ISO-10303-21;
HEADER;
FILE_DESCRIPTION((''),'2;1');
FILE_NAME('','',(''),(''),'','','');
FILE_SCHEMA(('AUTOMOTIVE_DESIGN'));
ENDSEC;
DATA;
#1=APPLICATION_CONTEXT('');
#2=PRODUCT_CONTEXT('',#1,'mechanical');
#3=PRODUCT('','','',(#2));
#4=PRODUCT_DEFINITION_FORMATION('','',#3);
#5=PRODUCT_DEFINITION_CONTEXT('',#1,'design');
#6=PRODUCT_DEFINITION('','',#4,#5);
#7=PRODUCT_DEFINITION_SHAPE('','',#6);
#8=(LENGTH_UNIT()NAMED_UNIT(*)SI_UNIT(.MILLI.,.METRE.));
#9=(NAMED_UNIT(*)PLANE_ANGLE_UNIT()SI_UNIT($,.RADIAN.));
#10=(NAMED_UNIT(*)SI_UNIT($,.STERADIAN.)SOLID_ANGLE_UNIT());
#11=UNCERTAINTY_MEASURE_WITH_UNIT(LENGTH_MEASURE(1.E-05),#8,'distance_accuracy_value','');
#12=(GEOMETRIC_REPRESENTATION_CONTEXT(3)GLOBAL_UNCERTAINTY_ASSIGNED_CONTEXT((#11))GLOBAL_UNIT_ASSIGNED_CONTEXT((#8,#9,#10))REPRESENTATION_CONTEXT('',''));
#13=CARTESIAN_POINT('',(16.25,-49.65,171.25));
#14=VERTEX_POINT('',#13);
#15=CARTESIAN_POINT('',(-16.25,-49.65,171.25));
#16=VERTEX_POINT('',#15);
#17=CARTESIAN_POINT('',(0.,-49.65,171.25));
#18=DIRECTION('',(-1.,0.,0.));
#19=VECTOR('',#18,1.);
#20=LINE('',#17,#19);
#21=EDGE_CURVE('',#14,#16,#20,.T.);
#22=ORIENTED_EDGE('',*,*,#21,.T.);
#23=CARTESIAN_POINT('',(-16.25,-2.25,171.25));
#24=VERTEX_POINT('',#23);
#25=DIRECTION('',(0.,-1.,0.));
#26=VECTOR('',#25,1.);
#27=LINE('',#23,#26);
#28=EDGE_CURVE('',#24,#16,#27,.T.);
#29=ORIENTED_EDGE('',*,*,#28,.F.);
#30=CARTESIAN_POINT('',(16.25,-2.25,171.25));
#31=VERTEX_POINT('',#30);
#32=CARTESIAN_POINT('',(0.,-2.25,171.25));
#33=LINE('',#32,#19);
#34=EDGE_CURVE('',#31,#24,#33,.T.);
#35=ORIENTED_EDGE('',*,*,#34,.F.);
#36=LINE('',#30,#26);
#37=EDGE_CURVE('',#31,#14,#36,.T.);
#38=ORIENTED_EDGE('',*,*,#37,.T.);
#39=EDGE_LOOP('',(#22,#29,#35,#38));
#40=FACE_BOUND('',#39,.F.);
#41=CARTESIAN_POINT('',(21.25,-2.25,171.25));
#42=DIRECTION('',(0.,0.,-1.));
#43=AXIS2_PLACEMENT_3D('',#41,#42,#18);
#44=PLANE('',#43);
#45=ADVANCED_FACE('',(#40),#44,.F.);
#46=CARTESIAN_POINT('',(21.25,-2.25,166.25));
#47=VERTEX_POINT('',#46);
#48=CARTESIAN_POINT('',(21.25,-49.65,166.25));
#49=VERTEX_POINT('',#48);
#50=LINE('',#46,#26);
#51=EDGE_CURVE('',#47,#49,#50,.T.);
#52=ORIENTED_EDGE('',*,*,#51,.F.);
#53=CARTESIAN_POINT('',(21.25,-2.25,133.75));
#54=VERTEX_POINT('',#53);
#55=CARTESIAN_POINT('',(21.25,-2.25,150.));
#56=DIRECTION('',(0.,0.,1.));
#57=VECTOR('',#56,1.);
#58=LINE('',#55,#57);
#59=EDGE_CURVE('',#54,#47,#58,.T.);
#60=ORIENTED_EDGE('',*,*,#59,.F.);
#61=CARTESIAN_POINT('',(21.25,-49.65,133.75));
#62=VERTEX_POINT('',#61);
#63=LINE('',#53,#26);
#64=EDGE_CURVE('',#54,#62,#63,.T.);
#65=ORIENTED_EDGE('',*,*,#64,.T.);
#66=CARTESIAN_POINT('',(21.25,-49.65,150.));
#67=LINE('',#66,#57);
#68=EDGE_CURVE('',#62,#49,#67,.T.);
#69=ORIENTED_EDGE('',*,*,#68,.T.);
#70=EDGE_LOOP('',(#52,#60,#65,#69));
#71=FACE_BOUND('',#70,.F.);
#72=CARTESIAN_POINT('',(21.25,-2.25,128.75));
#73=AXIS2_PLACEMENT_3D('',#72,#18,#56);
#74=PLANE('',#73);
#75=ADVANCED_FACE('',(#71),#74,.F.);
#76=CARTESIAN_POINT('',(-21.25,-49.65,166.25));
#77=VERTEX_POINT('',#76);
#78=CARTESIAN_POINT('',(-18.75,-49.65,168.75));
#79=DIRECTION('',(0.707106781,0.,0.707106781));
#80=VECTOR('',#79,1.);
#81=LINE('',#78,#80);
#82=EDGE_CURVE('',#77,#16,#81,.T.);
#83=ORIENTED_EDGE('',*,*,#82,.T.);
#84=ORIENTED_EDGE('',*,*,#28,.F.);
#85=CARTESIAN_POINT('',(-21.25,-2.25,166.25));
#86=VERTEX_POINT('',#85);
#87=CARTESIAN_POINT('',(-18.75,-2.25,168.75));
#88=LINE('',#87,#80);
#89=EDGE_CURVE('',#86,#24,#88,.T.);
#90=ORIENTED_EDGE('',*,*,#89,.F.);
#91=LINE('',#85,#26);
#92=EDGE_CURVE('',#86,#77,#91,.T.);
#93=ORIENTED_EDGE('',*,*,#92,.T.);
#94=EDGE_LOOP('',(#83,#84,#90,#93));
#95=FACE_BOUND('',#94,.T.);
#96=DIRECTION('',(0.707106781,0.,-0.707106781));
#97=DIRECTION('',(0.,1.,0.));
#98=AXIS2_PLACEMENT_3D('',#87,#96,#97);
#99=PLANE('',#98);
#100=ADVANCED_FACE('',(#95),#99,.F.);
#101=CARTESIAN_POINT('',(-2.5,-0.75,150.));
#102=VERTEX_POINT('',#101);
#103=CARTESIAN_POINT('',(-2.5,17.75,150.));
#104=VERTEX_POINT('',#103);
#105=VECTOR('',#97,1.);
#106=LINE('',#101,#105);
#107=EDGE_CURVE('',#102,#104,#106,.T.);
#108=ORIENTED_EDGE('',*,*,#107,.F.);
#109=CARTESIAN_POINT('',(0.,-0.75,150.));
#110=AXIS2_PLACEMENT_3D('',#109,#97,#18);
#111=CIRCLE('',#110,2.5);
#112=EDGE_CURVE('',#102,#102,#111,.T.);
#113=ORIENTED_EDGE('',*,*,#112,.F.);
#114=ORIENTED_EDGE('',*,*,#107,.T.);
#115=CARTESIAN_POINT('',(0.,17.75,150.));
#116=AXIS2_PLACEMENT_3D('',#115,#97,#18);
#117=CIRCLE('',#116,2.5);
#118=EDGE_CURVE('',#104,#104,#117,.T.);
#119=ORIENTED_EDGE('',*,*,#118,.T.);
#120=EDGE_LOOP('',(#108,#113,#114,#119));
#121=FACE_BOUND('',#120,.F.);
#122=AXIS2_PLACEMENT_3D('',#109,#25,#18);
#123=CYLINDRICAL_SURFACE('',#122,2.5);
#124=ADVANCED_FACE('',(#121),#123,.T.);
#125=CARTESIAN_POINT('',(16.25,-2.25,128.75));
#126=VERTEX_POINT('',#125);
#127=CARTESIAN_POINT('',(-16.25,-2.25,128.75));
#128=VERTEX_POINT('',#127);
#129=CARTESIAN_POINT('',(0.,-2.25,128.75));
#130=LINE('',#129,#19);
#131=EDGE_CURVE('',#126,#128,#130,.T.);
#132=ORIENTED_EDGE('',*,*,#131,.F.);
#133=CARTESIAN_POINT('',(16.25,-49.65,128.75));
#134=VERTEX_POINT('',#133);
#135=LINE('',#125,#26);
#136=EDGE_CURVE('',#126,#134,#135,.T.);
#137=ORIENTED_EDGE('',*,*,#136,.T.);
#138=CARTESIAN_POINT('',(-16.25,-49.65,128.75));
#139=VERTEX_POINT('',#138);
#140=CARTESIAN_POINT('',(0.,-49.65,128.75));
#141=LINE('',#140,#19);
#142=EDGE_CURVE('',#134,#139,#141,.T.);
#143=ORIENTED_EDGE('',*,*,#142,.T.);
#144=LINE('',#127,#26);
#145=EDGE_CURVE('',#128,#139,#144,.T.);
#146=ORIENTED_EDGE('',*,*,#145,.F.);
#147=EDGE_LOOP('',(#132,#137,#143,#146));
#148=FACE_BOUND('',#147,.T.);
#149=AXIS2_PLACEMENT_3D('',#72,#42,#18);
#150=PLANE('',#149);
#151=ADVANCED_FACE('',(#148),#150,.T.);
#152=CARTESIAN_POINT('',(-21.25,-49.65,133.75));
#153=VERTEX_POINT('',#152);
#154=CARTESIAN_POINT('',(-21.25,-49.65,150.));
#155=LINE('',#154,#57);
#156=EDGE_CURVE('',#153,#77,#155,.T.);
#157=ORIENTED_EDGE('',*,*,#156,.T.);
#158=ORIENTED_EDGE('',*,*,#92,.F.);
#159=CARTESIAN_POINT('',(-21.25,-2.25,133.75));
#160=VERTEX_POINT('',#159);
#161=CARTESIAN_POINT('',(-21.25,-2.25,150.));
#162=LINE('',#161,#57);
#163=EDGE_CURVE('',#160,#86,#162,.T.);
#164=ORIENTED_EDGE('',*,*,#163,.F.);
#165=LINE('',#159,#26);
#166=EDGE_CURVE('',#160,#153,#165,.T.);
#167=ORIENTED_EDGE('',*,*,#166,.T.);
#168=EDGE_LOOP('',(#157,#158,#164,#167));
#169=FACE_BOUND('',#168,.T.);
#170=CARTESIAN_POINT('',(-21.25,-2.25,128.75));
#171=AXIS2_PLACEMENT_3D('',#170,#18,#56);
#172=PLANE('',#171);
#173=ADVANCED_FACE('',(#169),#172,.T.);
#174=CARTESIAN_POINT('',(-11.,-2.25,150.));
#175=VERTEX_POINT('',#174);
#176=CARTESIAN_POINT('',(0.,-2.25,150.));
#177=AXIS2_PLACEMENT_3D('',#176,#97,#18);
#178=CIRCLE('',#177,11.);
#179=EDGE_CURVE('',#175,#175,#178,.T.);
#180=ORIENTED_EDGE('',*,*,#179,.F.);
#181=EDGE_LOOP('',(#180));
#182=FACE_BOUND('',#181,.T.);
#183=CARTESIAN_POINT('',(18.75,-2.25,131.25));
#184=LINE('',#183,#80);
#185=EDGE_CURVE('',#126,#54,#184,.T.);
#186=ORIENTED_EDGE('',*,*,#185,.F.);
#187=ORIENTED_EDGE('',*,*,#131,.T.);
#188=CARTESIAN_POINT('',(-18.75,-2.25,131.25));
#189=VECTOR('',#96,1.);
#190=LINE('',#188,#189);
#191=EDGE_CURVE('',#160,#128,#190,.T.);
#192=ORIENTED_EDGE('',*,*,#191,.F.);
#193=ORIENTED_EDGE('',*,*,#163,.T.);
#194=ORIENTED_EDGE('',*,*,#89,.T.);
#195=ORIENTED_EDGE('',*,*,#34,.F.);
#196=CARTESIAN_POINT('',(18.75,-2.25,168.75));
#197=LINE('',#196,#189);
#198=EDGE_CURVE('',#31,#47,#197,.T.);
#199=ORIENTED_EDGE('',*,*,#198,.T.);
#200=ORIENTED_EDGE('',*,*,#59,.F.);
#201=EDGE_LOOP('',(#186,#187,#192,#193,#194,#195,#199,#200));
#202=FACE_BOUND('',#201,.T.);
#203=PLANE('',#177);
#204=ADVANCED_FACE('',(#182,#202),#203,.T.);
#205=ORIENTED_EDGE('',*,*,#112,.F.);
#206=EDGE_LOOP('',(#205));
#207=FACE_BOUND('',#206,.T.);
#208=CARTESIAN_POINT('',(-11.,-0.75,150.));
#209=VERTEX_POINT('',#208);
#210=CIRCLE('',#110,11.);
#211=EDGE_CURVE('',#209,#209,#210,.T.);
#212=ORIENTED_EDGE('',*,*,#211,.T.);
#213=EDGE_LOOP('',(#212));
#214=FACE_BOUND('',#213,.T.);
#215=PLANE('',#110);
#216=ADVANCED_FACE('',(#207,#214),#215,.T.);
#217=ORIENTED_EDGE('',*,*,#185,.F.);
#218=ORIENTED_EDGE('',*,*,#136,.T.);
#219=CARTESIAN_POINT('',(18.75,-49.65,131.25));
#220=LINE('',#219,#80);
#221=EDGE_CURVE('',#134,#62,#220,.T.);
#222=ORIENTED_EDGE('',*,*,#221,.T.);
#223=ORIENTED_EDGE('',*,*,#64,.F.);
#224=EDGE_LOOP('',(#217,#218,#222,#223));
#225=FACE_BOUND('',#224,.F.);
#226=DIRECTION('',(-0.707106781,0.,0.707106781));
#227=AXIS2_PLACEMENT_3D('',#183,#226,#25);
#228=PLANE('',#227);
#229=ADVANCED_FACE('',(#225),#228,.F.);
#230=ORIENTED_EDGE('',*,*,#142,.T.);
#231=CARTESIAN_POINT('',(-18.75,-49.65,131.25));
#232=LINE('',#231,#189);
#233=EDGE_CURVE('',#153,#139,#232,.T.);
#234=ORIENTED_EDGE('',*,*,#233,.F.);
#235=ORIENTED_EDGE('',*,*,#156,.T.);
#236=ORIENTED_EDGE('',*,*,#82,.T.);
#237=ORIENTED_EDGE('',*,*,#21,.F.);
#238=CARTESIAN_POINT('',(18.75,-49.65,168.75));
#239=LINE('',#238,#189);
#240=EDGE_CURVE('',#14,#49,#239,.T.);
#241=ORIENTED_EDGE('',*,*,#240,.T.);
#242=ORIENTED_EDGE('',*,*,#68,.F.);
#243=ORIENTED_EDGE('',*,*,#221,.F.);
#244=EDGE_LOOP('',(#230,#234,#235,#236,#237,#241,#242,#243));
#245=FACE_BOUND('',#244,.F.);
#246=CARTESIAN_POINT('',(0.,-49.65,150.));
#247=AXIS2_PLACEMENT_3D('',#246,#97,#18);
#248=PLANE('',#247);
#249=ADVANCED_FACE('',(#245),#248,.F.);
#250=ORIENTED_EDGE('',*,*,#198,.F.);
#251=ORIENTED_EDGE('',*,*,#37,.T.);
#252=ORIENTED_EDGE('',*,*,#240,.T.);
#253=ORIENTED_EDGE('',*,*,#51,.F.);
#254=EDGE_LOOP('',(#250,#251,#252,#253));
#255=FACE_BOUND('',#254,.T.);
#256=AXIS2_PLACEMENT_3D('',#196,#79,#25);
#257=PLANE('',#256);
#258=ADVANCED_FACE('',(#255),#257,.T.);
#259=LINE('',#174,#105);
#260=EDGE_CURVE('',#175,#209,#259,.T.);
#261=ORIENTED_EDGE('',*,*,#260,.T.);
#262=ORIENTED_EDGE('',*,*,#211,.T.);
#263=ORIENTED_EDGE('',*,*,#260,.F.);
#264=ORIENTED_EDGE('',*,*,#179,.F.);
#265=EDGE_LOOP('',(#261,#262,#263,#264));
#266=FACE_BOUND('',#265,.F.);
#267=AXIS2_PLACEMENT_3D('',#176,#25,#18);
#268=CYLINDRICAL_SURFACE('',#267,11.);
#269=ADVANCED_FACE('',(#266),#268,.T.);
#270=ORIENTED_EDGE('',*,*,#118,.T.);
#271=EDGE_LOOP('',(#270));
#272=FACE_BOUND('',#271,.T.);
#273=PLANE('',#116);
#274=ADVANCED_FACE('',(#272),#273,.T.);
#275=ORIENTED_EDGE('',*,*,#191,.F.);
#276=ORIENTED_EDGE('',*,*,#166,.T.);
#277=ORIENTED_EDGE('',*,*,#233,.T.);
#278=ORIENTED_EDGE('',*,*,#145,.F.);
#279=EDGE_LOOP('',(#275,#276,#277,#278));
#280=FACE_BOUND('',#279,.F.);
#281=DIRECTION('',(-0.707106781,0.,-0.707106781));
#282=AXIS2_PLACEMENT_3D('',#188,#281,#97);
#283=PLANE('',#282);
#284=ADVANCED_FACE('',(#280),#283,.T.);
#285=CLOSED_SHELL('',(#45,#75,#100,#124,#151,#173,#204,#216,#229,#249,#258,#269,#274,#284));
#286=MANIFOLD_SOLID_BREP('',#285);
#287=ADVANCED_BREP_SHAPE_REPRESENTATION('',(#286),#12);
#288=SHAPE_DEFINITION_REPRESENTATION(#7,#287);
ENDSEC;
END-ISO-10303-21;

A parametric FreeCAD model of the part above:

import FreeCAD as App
import Part
import Sketcher

V = App.Vector


def edges_at(feature, points):
    """Names of the edges that pass closest to the given points."""
    edges = feature.Shape.Edges
    near = lambda p: min(range(len(edges)), key=lambda i: edges[i].distToShape(Part.Vertex(*p))[0])
    return sorted({f"Edge{near(p) + 1}" for p in points})

doc = App.newDocument("Part")
params = doc.addObject("Spreadsheet::Sheet", "Params")
for row, (alias, value) in enumerate([
    ("sketch1_width", "42.5 mm"),
    ("pad1_length", "47.4 mm"),
    ("chamfer_size", "5 mm"),
    ("chamfer2_size", "5 mm"),
    ("chamfer3_size", "5 mm"),
    ("chamfer4_size", "5 mm"),
    ("sketch2_diameter", "22 mm"),
    ("pad2_length", "1.5 mm"),
    ("sketch3_diameter", "5 mm"),
    ("pad3_length", "18.5 mm"),
], start=1):
    params.set(f"A{row}", alias)
    params.set(f"B{row}", "=" + value)
    params.setAlias(f"B{row}", alias)

body = doc.addObject("PartDesign::Body", "Body")

sketch1 = doc.addObject("Sketcher::SketchObject", "Sketch")
body.addObject(sketch1)
sketch1.AttachmentSupport = (doc.XZ_Plane, [""])
sketch1.MapMode = "FlatFace"
sketch1.addGeometry([
    Part.LineSegment(V(-21.25, 21.25, 0), V(-21.25, -21.25, 0)),
    Part.LineSegment(V(-21.25, -21.25, 0), V(21.25, -21.25, 0)),
    Part.LineSegment(V(21.25, -21.25, 0), V(21.25, 21.25, 0)),
    Part.LineSegment(V(21.25, 21.25, 0), V(-21.25, 21.25, 0)),
], False)
sketch1.addConstraint([
    Sketcher.Constraint("Coincident", 0, 2, 1, 1),
    Sketcher.Constraint("Coincident", 1, 2, 2, 1),
    Sketcher.Constraint("Coincident", 2, 2, 3, 1),
    Sketcher.Constraint("Coincident", 3, 2, 0, 1),
    Sketcher.Constraint("Vertical", 0),
    Sketcher.Constraint("Horizontal", 1),
    Sketcher.Constraint("Vertical", 2),
    Sketcher.Constraint("Horizontal", 3),
    Sketcher.Constraint("Symmetric", 0, 2, 2, 2, -1, 1),
    Sketcher.Constraint("Equal", 3, 0),
    Sketcher.Constraint("DistanceX", 1, 1, 1, 2, 42.5),
])
sketch1.setExpression("Constraints[10]", "Params.sketch1_width")
pad1 = doc.addObject("PartDesign::Pad", "Pad")
body.addObject(pad1)
pad1.Profile = sketch1
pad1.setExpression("Length", "Params.pad1_length")
pad1.Reversed = True
doc.recompute()

chamfer = doc.addObject("PartDesign::Chamfer", "Chamfer")
body.addObject(chamfer)
chamfer.Base = (pad1, edges_at(pad1, [(21.25, 23.7, 21.25)]))
chamfer.setExpression("Size", "Params.chamfer_size")
doc.recompute()

chamfer2 = doc.addObject("PartDesign::Chamfer", "Chamfer001")
body.addObject(chamfer2)
chamfer2.Base = (chamfer, edges_at(chamfer, [(-21.25, 23.7, 21.25)]))
chamfer2.setExpression("Size", "Params.chamfer2_size")
doc.recompute()

chamfer3 = doc.addObject("PartDesign::Chamfer", "Chamfer002")
body.addObject(chamfer3)
chamfer3.Base = (chamfer2, edges_at(chamfer2, [(21.25, 23.7, -21.25)]))
chamfer3.setExpression("Size", "Params.chamfer3_size")
doc.recompute()

chamfer4 = doc.addObject("PartDesign::Chamfer", "Chamfer003")
body.addObject(chamfer4)
chamfer4.Base = (chamfer3, edges_at(chamfer3, [(-21.25, 23.7, -21.25)]))
chamfer4.setExpression("Size", "Params.chamfer4_size")

sketch2 = doc.addObject("Sketcher::SketchObject", "Sketch001")
body.addObject(sketch2)
sketch2.AttachmentSupport = (doc.XZ_Plane, [""])
sketch2.MapMode = "FlatFace"
sketch2.addGeometry(Part.Circle(V(0, 0, 0), V(0, 0, 1), 11), False)
sketch2.addConstraint([
    Sketcher.Constraint("Coincident", 0, 3, -1, 1),
    Sketcher.Constraint("Diameter", 0, 22.0),
])
sketch2.setExpression("Constraints[1]", "Params.sketch2_diameter")
pad2 = doc.addObject("PartDesign::Pad", "Pad001")
body.addObject(pad2)
pad2.Profile = sketch2
pad2.setExpression("Length", "Params.pad2_length")

sketch3 = doc.addObject("Sketcher::SketchObject", "Sketch002")
body.addObject(sketch3)
sketch3.AttachmentSupport = (doc.XZ_Plane, [""])
sketch3.MapMode = "FlatFace"
sketch3.AttachmentOffset = App.Placement(V(0, 0, 1.5), App.Rotation())
sketch3.addGeometry(Part.Circle(V(0, 0, 0), V(0, 0, 1), 2.5), False)
sketch3.addConstraint([
    Sketcher.Constraint("Coincident", 0, 3, -1, 1),
    Sketcher.Constraint("Diameter", 0, 5.0),
])
sketch3.setExpression("Constraints[1]", "Params.sketch3_diameter")
pad3 = doc.addObject("PartDesign::Pad", "Pad002")
body.addObject(pad3)
pad3.Profile = sketch3
pad3.setExpression("Length", "Params.pad3_length")
body2 = doc.addObject("PartDesign::Body", "Body001")
doc.recompute()

body.Placement = App.Placement(V(0, -2.25, 150), App.Rotation(V(0, 0, 1), 180))
boolean = doc.addObject("PartDesign::Boolean", "Boolean")
body2.addObject(boolean)
boolean.Type = "Fuse"
boolean.addObjects([body])

doc.recompute()
